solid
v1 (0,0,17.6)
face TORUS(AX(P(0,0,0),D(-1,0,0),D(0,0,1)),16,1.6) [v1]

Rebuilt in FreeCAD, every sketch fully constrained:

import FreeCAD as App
import Part
import Sketcher

doc = App.newDocument("Part")
body = doc.addObject("PartDesign::Body", "Body")

# Sketch on XY plane
sketch1 = body.newObject("Sketcher::SketchObject", "Sketch")
sketch1.AttachmentSupport = (doc.getObject("XY_Plane"), [""])
sketch1.MapMode = "FlatFace"
sketch1.addGeometry(Part.Circle(App.Vector(0, 16, 0), App.Vector(0, 0, 1), 1.6), False)
sketch1.addConstraint([
    Sketcher.Constraint("PointOnObject", 0, 3, -2),
    Sketcher.Constraint("Diameter", 0, 3.2),
    Sketcher.Constraint("DistanceY", -1, 1, 0, 3, 16.0),
])
revolution = body.newObject("PartDesign::Revolution", "Revolution")
revolution.Profile = sketch1
revolution.ReferenceAxis = (sketch1, ["H_Axis"])
revolution.Angle = 360

doc.recompute()
